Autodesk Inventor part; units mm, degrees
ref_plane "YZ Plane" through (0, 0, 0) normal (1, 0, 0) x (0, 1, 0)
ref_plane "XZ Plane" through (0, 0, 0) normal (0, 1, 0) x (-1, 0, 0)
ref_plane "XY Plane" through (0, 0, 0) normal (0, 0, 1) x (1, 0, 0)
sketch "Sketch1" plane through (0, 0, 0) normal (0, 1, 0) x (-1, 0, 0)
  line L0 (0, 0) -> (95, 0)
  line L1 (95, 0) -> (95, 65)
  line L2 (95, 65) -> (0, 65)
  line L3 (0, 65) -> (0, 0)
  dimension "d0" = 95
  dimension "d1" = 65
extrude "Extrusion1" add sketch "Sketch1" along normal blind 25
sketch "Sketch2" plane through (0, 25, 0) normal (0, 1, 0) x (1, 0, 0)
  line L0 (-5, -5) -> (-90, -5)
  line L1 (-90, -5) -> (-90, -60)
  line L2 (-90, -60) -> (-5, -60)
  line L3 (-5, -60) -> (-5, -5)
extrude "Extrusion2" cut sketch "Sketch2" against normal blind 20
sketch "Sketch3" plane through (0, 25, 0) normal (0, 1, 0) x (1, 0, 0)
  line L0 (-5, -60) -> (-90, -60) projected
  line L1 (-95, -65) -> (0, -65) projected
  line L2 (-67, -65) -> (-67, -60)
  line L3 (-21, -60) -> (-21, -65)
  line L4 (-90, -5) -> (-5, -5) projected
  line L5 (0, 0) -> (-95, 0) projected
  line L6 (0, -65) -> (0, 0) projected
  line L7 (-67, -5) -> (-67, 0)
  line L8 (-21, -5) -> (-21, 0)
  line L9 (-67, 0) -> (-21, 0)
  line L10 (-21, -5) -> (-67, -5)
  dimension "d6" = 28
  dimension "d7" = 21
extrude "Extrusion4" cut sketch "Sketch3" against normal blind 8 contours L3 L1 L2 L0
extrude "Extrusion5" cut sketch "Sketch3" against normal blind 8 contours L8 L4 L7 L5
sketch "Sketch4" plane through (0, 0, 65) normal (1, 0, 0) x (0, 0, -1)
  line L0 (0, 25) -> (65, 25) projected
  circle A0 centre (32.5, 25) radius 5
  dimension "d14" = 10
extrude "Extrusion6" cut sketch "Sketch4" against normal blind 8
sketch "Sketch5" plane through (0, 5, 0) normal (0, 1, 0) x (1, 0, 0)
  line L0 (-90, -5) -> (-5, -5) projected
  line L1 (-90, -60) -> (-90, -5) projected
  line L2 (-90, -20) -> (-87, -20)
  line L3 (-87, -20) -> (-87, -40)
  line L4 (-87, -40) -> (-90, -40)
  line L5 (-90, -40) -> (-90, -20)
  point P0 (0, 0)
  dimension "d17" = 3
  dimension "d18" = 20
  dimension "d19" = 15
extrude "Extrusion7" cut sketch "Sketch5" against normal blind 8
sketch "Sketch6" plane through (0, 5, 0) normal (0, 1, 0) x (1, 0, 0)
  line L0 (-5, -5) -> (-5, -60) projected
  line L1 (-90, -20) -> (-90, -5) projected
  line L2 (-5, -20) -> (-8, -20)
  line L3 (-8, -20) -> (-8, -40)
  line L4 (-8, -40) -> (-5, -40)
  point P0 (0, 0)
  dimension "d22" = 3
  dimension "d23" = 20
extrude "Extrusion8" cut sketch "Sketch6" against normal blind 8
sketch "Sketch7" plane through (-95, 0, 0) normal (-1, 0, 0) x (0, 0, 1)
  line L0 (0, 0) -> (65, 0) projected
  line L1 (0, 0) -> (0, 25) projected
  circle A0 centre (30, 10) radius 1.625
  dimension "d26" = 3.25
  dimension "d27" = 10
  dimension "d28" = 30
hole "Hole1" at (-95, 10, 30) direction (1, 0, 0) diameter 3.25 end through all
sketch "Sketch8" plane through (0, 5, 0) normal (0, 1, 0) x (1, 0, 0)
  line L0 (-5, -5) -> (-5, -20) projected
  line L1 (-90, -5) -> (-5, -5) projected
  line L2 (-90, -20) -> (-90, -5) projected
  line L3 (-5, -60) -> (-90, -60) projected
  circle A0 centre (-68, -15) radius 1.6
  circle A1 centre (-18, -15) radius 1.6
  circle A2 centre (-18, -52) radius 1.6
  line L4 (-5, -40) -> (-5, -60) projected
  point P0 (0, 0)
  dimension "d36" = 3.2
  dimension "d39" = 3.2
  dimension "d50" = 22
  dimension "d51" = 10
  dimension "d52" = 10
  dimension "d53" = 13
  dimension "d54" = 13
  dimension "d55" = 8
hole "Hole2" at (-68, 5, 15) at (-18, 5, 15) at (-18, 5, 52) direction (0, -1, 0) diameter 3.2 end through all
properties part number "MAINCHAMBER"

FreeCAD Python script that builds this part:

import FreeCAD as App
import Part
import Sketcher
from FreeCAD import Vector
Q = App.Units.Quantity

doc = App.newDocument("Part")
body = doc.addObject("PartDesign::Body", "Body")

sketch1 = body.newObject("Sketcher::SketchObject", "Sketch")
sketch1.AttachmentSupport = (doc.getObject("XZ_Plane"), [""])
sketch1.MapMode = "FlatFace"
sketch1.addGeometry([
    Part.LineSegment(Vector(0, 65, 0), Vector(0, 0, 0)),
    Part.LineSegment(Vector(0, 0, 0), Vector(-95, 0, 0)),
    Part.LineSegment(Vector(-95, 0, 0), Vector(-95, 65, 0)),
    Part.LineSegment(Vector(-95, 65, 0), Vector(0, 65, 0)),
], False)
sketch1.addConstraint([
    Sketcher.Constraint("Coincident", 0, 2, 1, 1),
    Sketcher.Constraint("Coincident", 1, 2, 2, 1),
    Sketcher.Constraint("Coincident", 2, 2, 3, 1),
    Sketcher.Constraint("Coincident", 3, 2, 0, 1),
    Sketcher.Constraint("Vertical", 0),
    Sketcher.Constraint("Horizontal", 1),
    Sketcher.Constraint("Vertical", 2),
    Sketcher.Constraint("Horizontal", 3),
    Sketcher.Constraint("Coincident", 0, 2, -1, 1),
    Sketcher.Constraint("DistanceX", 1, 2, 1, 1, Q("95 mm")),
    Sketcher.Constraint("DistanceY", 0, 2, 0, 1, Q("65 mm")),
])
pad1 = body.newObject("PartDesign::Pad", "Pad")
pad1.Profile = sketch1
pad1.Length = 25
pad1.Reversed = True

sketch2 = body.newObject("Sketcher::SketchObject", "Sketch001")
sketch2.AttachmentSupport = (doc.getObject("XZ_Plane"), [""])
sketch2.MapMode = "FlatFace"
sketch2.AttachmentOffset = App.Placement(Vector(0, 0, -25), App.Rotation())
sketch2.addGeometry([
    Part.LineSegment(Vector(-5, 60, 0), Vector(-5, 5, 0)),
    Part.LineSegment(Vector(-5, 5, 0), Vector(-90, 5, 0)),
    Part.LineSegment(Vector(-90, 5, 0), Vector(-90, 60, 0)),
    Part.LineSegment(Vector(-90, 60, 0), Vector(-5, 60, 0)),
], False)
sketch2.addConstraint([
    Sketcher.Constraint("Coincident", 0, 2, 1, 1),
    Sketcher.Constraint("Coincident", 1, 2, 2, 1),
    Sketcher.Constraint("Coincident", 2, 2, 3, 1),
    Sketcher.Constraint("Coincident", 3, 2, 0, 1),
    Sketcher.Constraint("Vertical", 0),
    Sketcher.Constraint("Horizontal", 1),
    Sketcher.Constraint("Vertical", 2),
    Sketcher.Constraint("Horizontal", 3),
    Sketcher.Constraint("DistanceX", 1, 2, 1, 1, Q("85 mm")),
    Sketcher.Constraint("DistanceY", 0, 2, 0, 1, Q("55 mm")),
    Sketcher.Constraint("DistanceX", 0, 2, -1, 1, Q("5 mm")),
    Sketcher.Constraint("DistanceY", -1, 1, 0, 2, Q("5 mm")),
])
pocket1 = body.newObject("PartDesign::Pocket", "Pocket")
pocket1.Profile = sketch2
pocket1.Length = 20
pocket1.Reversed = True

sketch3 = body.newObject("Sketcher::SketchObject", "Sketch002")
sketch3.AttachmentSupport = (doc.getObject("XZ_Plane"), [""])
sketch3.MapMode = "FlatFace"
sketch3.AttachmentOffset = App.Placement(Vector(0, 0, -25), App.Rotation())
sketch3.addGeometry([
    Part.LineSegment(Vector(-21, 65, 0), Vector(-21, 60, 0)),
    Part.LineSegment(Vector(-21, 60, 0), Vector(-67, 60, 0)),
    Part.LineSegment(Vector(-67, 60, 0), Vector(-67, 65, 0)),
    Part.LineSegment(Vector(-67, 65, 0), Vector(-21, 65, 0)),
], False)
sketch3.addConstraint([
    Sketcher.Constraint("Coincident", 0, 2, 1, 1),
    Sketcher.Constraint("Coincident", 1, 2, 2, 1),
    Sketcher.Constraint("Coincident", 2, 2, 3, 1),
    Sketcher.Constraint("Coincident", 3, 2, 0, 1),
    Sketcher.Constraint("Vertical", 0),
    Sketcher.Constraint("Horizontal", 1),
    Sketcher.Constraint("Vertical", 2),
    Sketcher.Constraint("Horizontal", 3),
    Sketcher.Constraint("DistanceX", 0, 2, -1, 1, Q("21 mm")),
    Sketcher.Constraint("DistanceX", 1, 2, 1, 1, Q("46 mm")),
    Sketcher.Constraint("DistanceY", 0, 2, 0, 1, Q("5 mm")),
    Sketcher.Constraint("DistanceY", -1, 1, 0, 2, Q("60 mm")),
])
pocket2 = body.newObject("PartDesign::Pocket", "Pocket001")
pocket2.Profile = sketch3
pocket2.Length = 8
pocket2.Reversed = True

sketch4 = body.newObject("Sketcher::SketchObject", "Sketch003")
sketch4.AttachmentSupport = (doc.getObject("XZ_Plane"), [""])
sketch4.MapMode = "FlatFace"
sketch4.AttachmentOffset = App.Placement(Vector(0, 0, -25), App.Rotation())
sketch4.addGeometry([
    Part.LineSegment(Vector(-21, 5, 0), Vector(-21, 0, 0)),
    Part.LineSegment(Vector(-21, 0, 0), Vector(-67, 0, 0)),
    Part.LineSegment(Vector(-67, 0, 0), Vector(-67, 5, 0)),
    Part.LineSegment(Vector(-67, 5, 0), Vector(-21, 5, 0)),
], False)
sketch4.addConstraint([
    Sketcher.Constraint("Coincident", 0, 2, 1, 1),
    Sketcher.Constraint("Coincident", 1, 2, 2, 1),
    Sketcher.Constraint("Coincident", 2, 2, 3, 1),
    Sketcher.Constraint("Coincident", 3, 2, 0, 1),
    Sketcher.Constraint("Vertical", 0),
    Sketcher.Constraint("Horizontal", 1),
    Sketcher.Constraint("Vertical", 2),
    Sketcher.Constraint("Horizontal", 3),
    Sketcher.Constraint("PointOnObject", 0, 2, -1),
    Sketcher.Constraint("DistanceX", 0, 2, -1, 1, Q("21 mm")),
    Sketcher.Constraint("DistanceX", 1, 2, 1, 1, Q("46 mm")),
    Sketcher.Constraint("DistanceY", 0, 2, 0, 1, Q("5 mm")),
])
pocket3 = body.newObject("PartDesign::Pocket", "Pocket002")
pocket3.Profile = sketch4
pocket3.Length = 8
pocket3.Reversed = True

sketch5 = body.newObject("Sketcher::SketchObject", "Sketch004")
sketch5.AttachmentSupport = (doc.getObject("YZ_Plane"), [""])
sketch5.MapMode = "FlatFace"
sketch5.addGeometry(Part.Circle(Vector(25, 32.5, 0), Vector(0, 0, 1), 5), False)
sketch5.addConstraint([
    Sketcher.Constraint("Diameter", 0, Q("10 mm")),
    Sketcher.Constraint("DistanceX", -1, 1, 0, 3, Q("25 mm")),
    Sketcher.Constraint("DistanceY", -1, 1, 0, 3, Q("32.5 mm")),
])
pocket4 = body.newObject("PartDesign::Pocket", "Pocket003")
pocket4.Profile = sketch5
pocket4.Length = 8

sketch6 = body.newObject("Sketcher::SketchObject", "Sketch005")
sketch6.AttachmentSupport = (doc.getObject("XZ_Plane"), [""])
sketch6.MapMode = "FlatFace"
sketch6.AttachmentOffset = App.Placement(Vector(0, 0, -5), App.Rotation())
sketch6.addGeometry([
    Part.LineSegment(Vector(-90, 20, 0), Vector(-90, 40, 0)),
    Part.LineSegment(Vector(-90, 40, 0), Vector(-87, 40, 0)),
    Part.LineSegment(Vector(-87, 40, 0), Vector(-87, 20, 0)),
    Part.LineSegment(Vector(-87, 20, 0), Vector(-90, 20, 0)),
], False)
sketch6.addConstraint([
    Sketcher.Constraint("Coincident", 0, 2, 1, 1),
    Sketcher.Constraint("Coincident", 1, 2, 2, 1),
    Sketcher.Constraint("Coincident", 2, 2, 3, 1),
    Sketcher.Constraint("Coincident", 3, 2, 0, 1),
    Sketcher.Constraint("Vertical", 0),
    Sketcher.Constraint("Horizontal", 1),
    Sketcher.Constraint("Vertical", 2),
    Sketcher.Constraint("Horizontal", 3),
    Sketcher.Constraint("DistanceX", 1, 1, 1, 2, Q("3 mm")),
    Sketcher.Constraint("DistanceY", 0, 1, 0, 2, Q("20 mm")),
    Sketcher.Constraint("DistanceY", -1, 1, 2, 2, Q("20 mm")),
    Sketcher.Constraint("DistanceX", 0, 2, -1, 1, Q("90 mm")),
])
pocket5 = body.newObject("PartDesign::Pocket", "Pocket004")
pocket5.Profile = sketch6
pocket5.Length = 8
pocket5.Reversed = True

sketch7 = body.newObject("Sketcher::SketchObject", "Sketch006")
sketch7.AttachmentSupport = (doc.getObject("XZ_Plane"), [""])
sketch7.MapMode = "FlatFace"
sketch7.AttachmentOffset = App.Placement(Vector(0, 0, -5), App.Rotation())
sketch7.addGeometry([
    Part.LineSegment(Vector(-5, 40, 0), Vector(-5, 20, 0)),
    Part.LineSegment(Vector(-5, 20, 0), Vector(-8, 20, 0)),
    Part.LineSegment(Vector(-8, 20, 0), Vector(-8, 40, 0)),
    Part.LineSegment(Vector(-8, 40, 0), Vector(-5, 40, 0)),
], False)
sketch7.addConstraint([
    Sketcher.Constraint("Coincident", 0, 2, 1, 1),
    Sketcher.Constraint("Coincident", 1, 2, 2, 1),
    Sketcher.Constraint("Coincident", 2, 2, 3, 1),
    Sketcher.Constraint("Coincident", 3, 2, 0, 1),
    Sketcher.Constraint("Vertical", 0),
    Sketcher.Constraint("Horizontal", 1),
    Sketcher.Constraint("Vertical", 2),
    Sketcher.Constraint("Horizontal", 3),
    Sketcher.Constraint("DistanceX", 1, 2, 1, 1, Q("3 mm")),
    Sketcher.Constraint("DistanceY", 0, 2, 0, 1, Q("20 mm")),
    Sketcher.Constraint("DistanceY", -1, 1, 0, 2, Q("20 mm")),
    Sketcher.Constraint("DistanceX", 0, 2, -1, 1, Q("5 mm")),
])
pocket6 = body.newObject("PartDesign::Pocket", "Pocket005")
pocket6.Profile = sketch7
pocket6.Length = 8
pocket6.Reversed = True

sketch8 = body.newObject("Sketcher::SketchObject", "Sketch007")
sketch8.AttachmentSupport = (doc.getObject("YZ_Plane"), [""])
sketch8.MapMode = "FlatFace"
sketch8.AttachmentOffset = App.Placement(Vector(0, 0, -95), App.Rotation())
sketch8.addGeometry(Part.Circle(Vector(10, 30, 0), Vector(0, 0, 1), 1.625), False)
sketch8.addConstraint([
    Sketcher.Constraint("Diameter", 0, Q("3.25 mm")),
    Sketcher.Constraint("DistanceX", -1, 1, 0, 3, Q("10 mm")),
    Sketcher.Constraint("DistanceY", -1, 1, 0, 3, Q("30 mm")),
])
doc.recompute()
hole = body.newObject("PartDesign::Hole", "Hole")
hole.Profile = sketch8
hole.ThreadType = "None"
hole.Diameter = 3.25
hole.DepthType = "ThroughAll"
hole.Reversed = True

sketch9 = body.newObject("Sketcher::SketchObject", "Sketch008")
sketch9.AttachmentSupport = (doc.getObject("XZ_Plane"), [""])
sketch9.MapMode = "FlatFace"
sketch9.AttachmentOffset = App.Placement(Vector(0, 0, -5), App.Rotation())
sketch9.addGeometry([
    Part.Circle(Vector(-68, 15, 0), Vector(0, 0, 1), 1.6),
    Part.Circle(Vector(-18, 15, 0), Vector(0, 0, 1), 1.6),
    Part.Circle(Vector(-18, 52, 0), Vector(0, 0, 1), 1.6),
], False)
sketch9.addConstraint([
    Sketcher.Constraint("Equal", 0, 1),
    Sketcher.Constraint("Equal", 1, 2),
    Sketcher.Constraint("Horizontal", 0, 3, 1, 3),
    Sketcher.Constraint("Vertical", 1, 3, 2, 3),
    Sketcher.Constraint("Diameter", 0, Q("3.2 mm")),
    Sketcher.Constraint("DistanceX", 0, 3, -1, 1, Q("68 mm")),
    Sketcher.Constraint("DistanceY", -1, 1, 0, 3, Q("15 mm")),
    Sketcher.Constraint("DistanceX", 1, 3, -1, 1, Q("18 mm")),
    Sketcher.Constraint("DistanceY", -1, 1, 2, 3, Q("52 mm")),
])
doc.recompute()
hole2 = body.newObject("PartDesign::Hole", "Hole001")
hole2.Profile = sketch9
hole2.ThreadType = "None"
hole2.Diameter = 3.2
hole2.DepthType = "ThroughAll"
hole2.Reversed = True

doc.recompute()
